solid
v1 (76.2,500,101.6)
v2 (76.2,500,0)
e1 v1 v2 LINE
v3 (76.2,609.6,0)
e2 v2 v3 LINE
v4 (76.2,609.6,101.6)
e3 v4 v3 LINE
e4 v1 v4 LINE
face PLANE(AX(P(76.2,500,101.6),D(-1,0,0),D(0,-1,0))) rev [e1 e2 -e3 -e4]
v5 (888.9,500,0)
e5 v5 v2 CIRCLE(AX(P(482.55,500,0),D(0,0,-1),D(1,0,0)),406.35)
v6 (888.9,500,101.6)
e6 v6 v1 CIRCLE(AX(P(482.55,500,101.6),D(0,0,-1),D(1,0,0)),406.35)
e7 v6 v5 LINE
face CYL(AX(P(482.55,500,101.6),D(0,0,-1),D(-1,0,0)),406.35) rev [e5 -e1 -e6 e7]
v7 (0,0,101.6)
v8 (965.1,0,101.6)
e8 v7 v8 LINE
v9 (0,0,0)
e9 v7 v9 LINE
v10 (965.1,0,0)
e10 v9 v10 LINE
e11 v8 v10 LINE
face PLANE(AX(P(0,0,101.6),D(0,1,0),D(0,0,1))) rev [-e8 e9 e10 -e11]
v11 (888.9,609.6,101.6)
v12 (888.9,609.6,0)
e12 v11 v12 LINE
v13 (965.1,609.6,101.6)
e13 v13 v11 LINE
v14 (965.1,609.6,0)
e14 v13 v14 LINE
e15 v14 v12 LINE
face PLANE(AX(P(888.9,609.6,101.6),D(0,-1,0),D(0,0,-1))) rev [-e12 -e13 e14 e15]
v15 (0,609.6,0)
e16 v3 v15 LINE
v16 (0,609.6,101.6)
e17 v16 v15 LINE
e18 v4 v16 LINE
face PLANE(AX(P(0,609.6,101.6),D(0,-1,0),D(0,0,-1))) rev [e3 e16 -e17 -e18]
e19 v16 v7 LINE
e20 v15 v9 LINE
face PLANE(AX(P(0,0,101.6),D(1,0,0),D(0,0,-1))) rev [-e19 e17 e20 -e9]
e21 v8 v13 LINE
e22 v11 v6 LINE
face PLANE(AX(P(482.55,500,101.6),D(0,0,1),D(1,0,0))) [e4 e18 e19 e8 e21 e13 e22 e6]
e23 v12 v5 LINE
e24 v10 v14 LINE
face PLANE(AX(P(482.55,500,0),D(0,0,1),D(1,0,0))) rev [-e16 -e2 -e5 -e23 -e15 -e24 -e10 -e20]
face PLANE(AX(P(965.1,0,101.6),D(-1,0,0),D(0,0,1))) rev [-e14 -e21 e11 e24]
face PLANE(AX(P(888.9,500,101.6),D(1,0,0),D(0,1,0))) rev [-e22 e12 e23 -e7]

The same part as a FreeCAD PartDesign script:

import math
import FreeCAD as App
import Part
import Sketcher

doc = App.newDocument("Part")
body = doc.addObject("PartDesign::Body", "Body")

sketch1 = doc.addObject("Sketcher::SketchObject", "Sketch")
body.addObject(sketch1)
sketch1.AttachmentSupport = (doc.XY_Plane, [""])
sketch1.MapMode = "FlatFace"
sketch1.addGeometry(Part.LineSegment(App.Vector(76, 500, 0), App.Vector(76, 610, 0)), False)
sketch1.addGeometry(Part.LineSegment(App.Vector(76, 610, 0), App.Vector(0, 610, 0)), False)
sketch1.addGeometry(Part.LineSegment(App.Vector(0, 610, 0), App.Vector(0, 0, 0)), False)
sketch1.addGeometry(Part.LineSegment(App.Vector(0, 0, 0), App.Vector(965, 0, 0)), False)
sketch1.addGeometry(Part.LineSegment(App.Vector(965, 0, 0), App.Vector(965, 610, 0)), False)
sketch1.addGeometry(Part.LineSegment(App.Vector(965, 610, 0), App.Vector(889, 610, 0)), False)
sketch1.addGeometry(Part.LineSegment(App.Vector(889, 610, 0), App.Vector(889, 500, 0)), False)
sketch1.addGeometry(Part.ArcOfCircle(Part.Circle(App.Vector(483, 500, 0), App.Vector(0, 0, 1), 406), math.radians(180), math.radians(360)), False)
sketch1.addConstraint(Sketcher.Constraint("Coincident", 0, 2, 1, 1))
sketch1.addConstraint(Sketcher.Constraint("Coincident", 1, 2, 2, 1))
sketch1.addConstraint(Sketcher.Constraint("Coincident", 2, 2, 3, 1))
sketch1.addConstraint(Sketcher.Constraint("Coincident", 3, 2, 4, 1))
sketch1.addConstraint(Sketcher.Constraint("Coincident", 4, 2, 5, 1))
sketch1.addConstraint(Sketcher.Constraint("Coincident", 5, 2, 6, 1))
sketch1.addConstraint(Sketcher.Constraint("Tangent", 6, 2, 7, 2))
sketch1.addConstraint(Sketcher.Constraint("Tangent", 7, 1, 0, 1))
sketch1.addConstraint(Sketcher.Constraint("Vertical", 0))
sketch1.addConstraint(Sketcher.Constraint("Horizontal", 1))
sketch1.addConstraint(Sketcher.Constraint("Vertical", 2))
sketch1.addConstraint(Sketcher.Constraint("Horizontal", 3))
sketch1.addConstraint(Sketcher.Constraint("Vertical", 4))
sketch1.addConstraint(Sketcher.Constraint("Horizontal", 5))
sketch1.addConstraint(Sketcher.Constraint("Vertical", 6))
sketch1.addConstraint(Sketcher.Constraint("Coincident", 2, 2, -1, 1))
sketch1.addConstraint(Sketcher.Constraint("Horizontal", 1, 2, 4, 2))
sketch1.addConstraint(Sketcher.Constraint("Equal", 1, 5))
sketch1.addConstraint(Sketcher.Constraint("Radius", 7, 406.35))
sketch1.addConstraint(Sketcher.Constraint("DistanceX", 1, 2, 1, 1, 76.2))
sketch1.addConstraint(Sketcher.Constraint("DistanceY", 0, 1, 0, 2, 109.6))
sketch1.addConstraint(Sketcher.Constraint("DistanceY", 2, 2, 2, 1, 609.6))
pad1 = doc.addObject("PartDesign::Pad", "Pad")
body.addObject(pad1)
pad1.Profile = sketch1
pad1.Length = 101.6

doc.recompute()
